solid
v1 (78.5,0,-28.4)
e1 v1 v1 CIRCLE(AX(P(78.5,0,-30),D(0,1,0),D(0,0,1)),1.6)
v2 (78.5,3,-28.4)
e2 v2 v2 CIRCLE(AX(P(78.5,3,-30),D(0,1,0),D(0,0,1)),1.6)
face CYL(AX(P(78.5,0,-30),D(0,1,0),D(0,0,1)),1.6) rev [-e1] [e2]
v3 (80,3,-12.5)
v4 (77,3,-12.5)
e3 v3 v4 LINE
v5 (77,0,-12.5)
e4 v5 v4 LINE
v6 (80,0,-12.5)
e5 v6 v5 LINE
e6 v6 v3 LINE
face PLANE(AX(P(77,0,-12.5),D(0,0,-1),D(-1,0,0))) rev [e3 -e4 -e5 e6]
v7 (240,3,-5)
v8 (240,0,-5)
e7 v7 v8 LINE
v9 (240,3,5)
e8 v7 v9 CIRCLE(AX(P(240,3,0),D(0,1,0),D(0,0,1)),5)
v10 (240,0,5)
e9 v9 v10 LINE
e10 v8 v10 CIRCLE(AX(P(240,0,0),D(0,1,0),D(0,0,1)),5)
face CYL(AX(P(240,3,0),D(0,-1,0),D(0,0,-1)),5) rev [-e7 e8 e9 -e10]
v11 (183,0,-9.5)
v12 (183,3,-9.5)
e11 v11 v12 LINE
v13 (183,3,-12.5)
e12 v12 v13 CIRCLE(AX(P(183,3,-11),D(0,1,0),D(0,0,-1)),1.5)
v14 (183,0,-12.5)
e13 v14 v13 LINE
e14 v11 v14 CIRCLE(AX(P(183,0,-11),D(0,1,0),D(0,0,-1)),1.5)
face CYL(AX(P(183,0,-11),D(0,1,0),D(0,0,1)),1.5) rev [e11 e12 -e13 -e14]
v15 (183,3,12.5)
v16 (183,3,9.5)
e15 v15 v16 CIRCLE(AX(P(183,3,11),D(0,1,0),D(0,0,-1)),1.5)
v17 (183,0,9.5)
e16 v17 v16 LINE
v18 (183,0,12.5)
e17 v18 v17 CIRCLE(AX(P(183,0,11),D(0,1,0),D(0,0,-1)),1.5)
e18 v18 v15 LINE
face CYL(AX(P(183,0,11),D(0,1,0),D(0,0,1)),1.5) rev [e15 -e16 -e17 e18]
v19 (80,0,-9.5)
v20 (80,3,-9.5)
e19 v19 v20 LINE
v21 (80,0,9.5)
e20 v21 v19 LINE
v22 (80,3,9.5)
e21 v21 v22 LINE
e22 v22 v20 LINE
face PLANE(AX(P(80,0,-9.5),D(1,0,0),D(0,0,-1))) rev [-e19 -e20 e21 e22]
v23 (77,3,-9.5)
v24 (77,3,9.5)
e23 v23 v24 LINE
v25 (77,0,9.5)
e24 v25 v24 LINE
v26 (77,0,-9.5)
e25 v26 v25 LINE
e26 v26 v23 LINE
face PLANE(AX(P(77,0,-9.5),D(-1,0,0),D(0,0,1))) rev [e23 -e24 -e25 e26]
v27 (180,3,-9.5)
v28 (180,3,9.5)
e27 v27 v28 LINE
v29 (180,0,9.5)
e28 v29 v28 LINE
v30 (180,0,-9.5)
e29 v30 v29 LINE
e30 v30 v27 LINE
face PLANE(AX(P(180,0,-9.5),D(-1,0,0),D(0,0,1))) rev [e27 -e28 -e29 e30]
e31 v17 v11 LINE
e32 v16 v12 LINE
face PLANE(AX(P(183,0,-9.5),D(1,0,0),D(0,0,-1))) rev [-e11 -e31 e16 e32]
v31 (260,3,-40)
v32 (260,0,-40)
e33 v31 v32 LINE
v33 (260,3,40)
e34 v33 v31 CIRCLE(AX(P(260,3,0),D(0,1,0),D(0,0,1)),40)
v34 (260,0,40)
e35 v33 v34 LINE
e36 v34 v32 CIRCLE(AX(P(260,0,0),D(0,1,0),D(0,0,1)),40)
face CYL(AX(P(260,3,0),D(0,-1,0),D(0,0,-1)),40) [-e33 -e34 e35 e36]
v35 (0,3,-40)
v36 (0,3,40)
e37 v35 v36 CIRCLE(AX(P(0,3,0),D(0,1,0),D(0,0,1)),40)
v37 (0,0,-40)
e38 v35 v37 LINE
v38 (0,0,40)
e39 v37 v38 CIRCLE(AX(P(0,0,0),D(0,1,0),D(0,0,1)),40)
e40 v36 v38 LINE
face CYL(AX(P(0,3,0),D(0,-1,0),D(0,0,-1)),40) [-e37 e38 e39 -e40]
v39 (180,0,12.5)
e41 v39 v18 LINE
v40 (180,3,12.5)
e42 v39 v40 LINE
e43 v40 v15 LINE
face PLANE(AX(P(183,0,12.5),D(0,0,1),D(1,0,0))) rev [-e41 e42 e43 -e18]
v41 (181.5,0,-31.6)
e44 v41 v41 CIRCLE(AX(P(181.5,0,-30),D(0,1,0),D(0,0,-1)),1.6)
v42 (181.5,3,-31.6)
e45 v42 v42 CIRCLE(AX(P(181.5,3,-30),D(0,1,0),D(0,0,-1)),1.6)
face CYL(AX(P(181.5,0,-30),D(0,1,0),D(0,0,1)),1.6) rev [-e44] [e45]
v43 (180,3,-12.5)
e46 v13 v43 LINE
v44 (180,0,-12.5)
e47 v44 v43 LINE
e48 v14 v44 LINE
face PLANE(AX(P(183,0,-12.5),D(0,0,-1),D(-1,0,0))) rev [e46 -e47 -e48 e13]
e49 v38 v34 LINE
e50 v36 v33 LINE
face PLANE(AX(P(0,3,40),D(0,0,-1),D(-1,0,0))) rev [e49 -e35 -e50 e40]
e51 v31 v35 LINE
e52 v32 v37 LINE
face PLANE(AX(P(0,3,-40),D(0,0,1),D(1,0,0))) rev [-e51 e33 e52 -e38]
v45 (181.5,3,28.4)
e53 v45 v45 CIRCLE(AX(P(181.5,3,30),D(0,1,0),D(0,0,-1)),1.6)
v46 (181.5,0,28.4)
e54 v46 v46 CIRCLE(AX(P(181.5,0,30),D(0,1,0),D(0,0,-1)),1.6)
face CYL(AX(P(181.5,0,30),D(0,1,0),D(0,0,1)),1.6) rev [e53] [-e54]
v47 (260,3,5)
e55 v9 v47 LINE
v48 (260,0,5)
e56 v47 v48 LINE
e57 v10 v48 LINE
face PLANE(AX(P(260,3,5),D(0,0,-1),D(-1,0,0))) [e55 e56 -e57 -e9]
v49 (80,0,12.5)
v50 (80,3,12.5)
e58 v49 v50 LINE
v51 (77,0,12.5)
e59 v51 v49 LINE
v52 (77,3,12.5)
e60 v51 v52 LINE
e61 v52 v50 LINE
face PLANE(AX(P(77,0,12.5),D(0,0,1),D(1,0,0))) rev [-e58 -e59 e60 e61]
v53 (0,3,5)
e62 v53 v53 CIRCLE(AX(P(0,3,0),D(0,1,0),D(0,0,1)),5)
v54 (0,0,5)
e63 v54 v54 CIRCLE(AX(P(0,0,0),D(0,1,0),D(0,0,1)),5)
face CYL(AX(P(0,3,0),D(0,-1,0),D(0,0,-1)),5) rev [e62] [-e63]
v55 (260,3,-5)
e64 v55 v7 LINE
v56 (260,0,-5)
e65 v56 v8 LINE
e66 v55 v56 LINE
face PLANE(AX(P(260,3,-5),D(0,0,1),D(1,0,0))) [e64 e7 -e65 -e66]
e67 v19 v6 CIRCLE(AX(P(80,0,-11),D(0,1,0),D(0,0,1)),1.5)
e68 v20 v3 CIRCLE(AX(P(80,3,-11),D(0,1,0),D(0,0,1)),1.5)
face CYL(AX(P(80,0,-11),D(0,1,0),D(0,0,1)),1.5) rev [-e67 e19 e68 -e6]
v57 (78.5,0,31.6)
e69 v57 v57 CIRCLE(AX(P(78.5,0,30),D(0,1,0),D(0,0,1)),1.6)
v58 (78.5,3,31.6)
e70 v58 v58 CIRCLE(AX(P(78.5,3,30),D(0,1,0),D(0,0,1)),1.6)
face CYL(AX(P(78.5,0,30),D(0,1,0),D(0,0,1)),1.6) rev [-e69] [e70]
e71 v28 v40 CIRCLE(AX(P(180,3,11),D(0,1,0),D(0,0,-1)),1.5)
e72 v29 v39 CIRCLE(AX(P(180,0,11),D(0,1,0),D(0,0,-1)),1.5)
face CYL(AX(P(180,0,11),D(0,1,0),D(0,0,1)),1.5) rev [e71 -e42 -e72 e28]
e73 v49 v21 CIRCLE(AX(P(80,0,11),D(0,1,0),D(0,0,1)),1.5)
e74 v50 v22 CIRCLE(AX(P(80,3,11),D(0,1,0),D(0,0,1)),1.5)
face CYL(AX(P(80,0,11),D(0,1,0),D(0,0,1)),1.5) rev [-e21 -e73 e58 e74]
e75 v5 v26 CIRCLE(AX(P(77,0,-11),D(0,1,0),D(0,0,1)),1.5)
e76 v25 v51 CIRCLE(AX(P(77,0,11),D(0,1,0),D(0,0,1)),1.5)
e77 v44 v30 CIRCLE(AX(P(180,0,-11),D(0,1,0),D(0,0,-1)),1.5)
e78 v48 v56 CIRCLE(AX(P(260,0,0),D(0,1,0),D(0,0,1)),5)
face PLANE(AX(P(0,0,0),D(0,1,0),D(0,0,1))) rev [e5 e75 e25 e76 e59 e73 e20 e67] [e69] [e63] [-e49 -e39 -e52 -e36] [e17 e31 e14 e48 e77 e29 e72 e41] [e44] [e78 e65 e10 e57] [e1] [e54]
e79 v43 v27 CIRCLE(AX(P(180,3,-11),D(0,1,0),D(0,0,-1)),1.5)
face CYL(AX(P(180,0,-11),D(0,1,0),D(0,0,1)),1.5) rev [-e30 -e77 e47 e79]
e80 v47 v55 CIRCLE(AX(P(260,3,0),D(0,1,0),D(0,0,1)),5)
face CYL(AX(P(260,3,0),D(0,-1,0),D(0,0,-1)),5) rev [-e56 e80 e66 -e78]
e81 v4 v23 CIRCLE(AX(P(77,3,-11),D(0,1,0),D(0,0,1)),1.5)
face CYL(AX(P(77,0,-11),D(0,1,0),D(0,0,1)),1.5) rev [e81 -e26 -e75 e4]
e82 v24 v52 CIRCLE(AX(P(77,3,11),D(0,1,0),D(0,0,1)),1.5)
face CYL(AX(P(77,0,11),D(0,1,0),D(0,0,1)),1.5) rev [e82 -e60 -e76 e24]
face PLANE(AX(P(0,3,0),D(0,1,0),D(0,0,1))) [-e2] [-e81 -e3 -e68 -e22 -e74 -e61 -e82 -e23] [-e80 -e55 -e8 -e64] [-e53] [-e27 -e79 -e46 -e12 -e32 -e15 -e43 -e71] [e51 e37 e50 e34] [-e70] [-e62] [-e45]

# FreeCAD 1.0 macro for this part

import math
import FreeCAD as App
import Part
import Sketcher

V = App.Vector

doc = App.newDocument("Part")
body = doc.addObject("PartDesign::Body", "Body")

# Sketch on XZ plane
sketch1 = body.newObject("Sketcher::SketchObject", "Sketch")
sketch1.AttachmentSupport = (doc.getObject("XZ_Plane"), [""])
sketch1.MapMode = "FlatFace"
sketch1.addGeometry([
    Part.LineSegment(V(260, -40, 0), V(0, -40, 0)),  # 0
    Part.ArcOfCircle(Part.Circle(V(0, 0, 0), V(0, 0, 1), 40), math.radians(90), math.radians(270)),  # 1
    Part.LineSegment(V(0, 40, 0), V(260, 40, 0)),  # 2
    Part.ArcOfCircle(Part.Circle(V(260, 0, 0), V(0, 0, 1), 40), math.radians(-90), math.radians(90)),  # 3
    Part.LineSegment(V(260, 5, 0), V(240, 5, 0)),  # 4
    Part.ArcOfCircle(Part.Circle(V(240, 0, 0), V(0, 0, 1), 5), math.radians(90), math.radians(270)),  # 5
    Part.LineSegment(V(240, -5, 0), V(260, -5, 0)),  # 6
    Part.ArcOfCircle(Part.Circle(V(260, 0, 0), V(0, 0, 1), 5), math.radians(-90), math.radians(90)),  # 7
    Part.Circle(V(0, 0, 0), V(0, 0, 1), 5),  # 8
], False)
sketch1.addConstraint([
    Sketcher.Constraint("Tangent", 0, 2, 1, 2),
    Sketcher.Constraint("Tangent", 1, 1, 2, 1),
    Sketcher.Constraint("Tangent", 2, 2, 3, 2),
    Sketcher.Constraint("Tangent", 3, 1, 0, 1),
    Sketcher.Constraint("Tangent", 4, 2, 5, 1),
    Sketcher.Constraint("Tangent", 5, 2, 6, 1),
    Sketcher.Constraint("Tangent", 6, 2, 7, 1),
    Sketcher.Constraint("Tangent", 7, 2, 4, 1),
    Sketcher.Constraint("Horizontal", 0),
    Sketcher.Constraint("Horizontal", 2),
    Sketcher.Constraint("Horizontal", 4),
    Sketcher.Constraint("Horizontal", 6),
    Sketcher.Constraint("Coincident", 1, 3, -1, 1),
    Sketcher.Constraint("Coincident", 8, 3, -1, 1),
    Sketcher.Constraint("Coincident", 7, 3, 3, 3),
    Sketcher.Constraint("Equal", 7, 8),
    Sketcher.Constraint("Diameter", 8, 10.0),
    Sketcher.Constraint("Radius", 1, 40.0),
    Sketcher.Constraint("DistanceX", 0, 2, 0, 1, 260.0),
    Sketcher.Constraint("DistanceX", 4, 2, 4, 1, 20.0),
])
pad1 = body.newObject("PartDesign::Pad", "Pad")
pad1.Profile = sketch1
pad1.Length = 3
pad1.Reversed = True

# Sketch on XZ plane
sketch2 = body.newObject("Sketcher::SketchObject", "Sketch001")
sketch2.AttachmentSupport = (doc.getObject("XZ_Plane"), [""])
sketch2.MapMode = "FlatFace"
sketch2.AttachmentOffset = App.Placement(V(0, 0, -3), App.Rotation())
sketch2.addGeometry([
    Part.Circle(V(78.5, -30, 0), V(0, 0, 1), 1.6),  # 0
    Part.Circle(V(78.5, 30, 0), V(0, 0, 1), 1.6),  # 1
    Part.Circle(V(181.5, 30, 0), V(0, 0, 1), 1.6),  # 2
    Part.Circle(V(181.5, -30, 0), V(0, 0, 1), 1.6),  # 3
    Part.LineSegment(V(80, 9.5, 0), V(80, -9.5, 0)),  # 4
    Part.ArcOfCircle(Part.Circle(V(80, -11, 0), V(0, 0, 1), 1.5), math.radians(-90), math.radians(90)),  # 5
    Part.LineSegment(V(80, -12.5, 0), V(77, -12.5, 0)),  # 6
    Part.ArcOfCircle(Part.Circle(V(77, -11, 0), V(0, 0, 1), 1.5), math.radians(90), math.radians(270)),  # 7
    Part.LineSegment(V(77, -9.5, 0), V(77, 9.5, 0)),  # 8
    Part.ArcOfCircle(Part.Circle(V(77, 11, 0), V(0, 0, 1), 1.5), math.radians(90), math.radians(270)),  # 9
    Part.LineSegment(V(77, 12.5, 0), V(80, 12.5, 0)),  # 10
    Part.ArcOfCircle(Part.Circle(V(80, 11, 0), V(0, 0, 1), 1.5), math.radians(-90), math.radians(90)),  # 11
    Part.LineSegment(V(183, -12.5, 0), V(180, -12.5, 0)),  # 12
    Part.ArcOfCircle(Part.Circle(V(180, -11, 0), V(0, 0, 1), 1.5), math.radians(90), math.radians(270)),  # 13
    Part.LineSegment(V(180, -9.5, 0), V(180, 9.5, 0)),  # 14
    Part.ArcOfCircle(Part.Circle(V(180, 11, 0), V(0, 0, 1), 1.5), math.radians(90), math.radians(270)),  # 15
    Part.LineSegment(V(180, 12.5, 0), V(183, 12.5, 0)),  # 16
    Part.ArcOfCircle(Part.Circle(V(183, 11, 0), V(0, 0, 1), 1.5), math.radians(-90), math.radians(90)),  # 17
    Part.LineSegment(V(183, 9.5, 0), V(183, -9.5, 0)),  # 18
    Part.ArcOfCircle(Part.Circle(V(183, -11, 0), V(0, 0, 1), 1.5), math.radians(-90), math.radians(90)),  # 19
], False)
sketch2.addConstraint([
    Sketcher.Constraint("Coincident", 4, 2, 5, 2),
    Sketcher.Constraint("Tangent", 5, 1, 6, 1),
    Sketcher.Constraint("Tangent", 6, 2, 7, 2),
    Sketcher.Constraint("Coincident", 7, 1, 8, 1),
    Sketcher.Constraint("Coincident", 8, 2, 9, 2),
    Sketcher.Constraint("Tangent", 9, 1, 10, 1),
    Sketcher.Constraint("Tangent", 10, 2, 11, 2),
    Sketcher.Constraint("Coincident", 11, 1, 4, 1),
    Sketcher.Constraint("Tangent", 12, 2, 13, 2),
    Sketcher.Constraint("Coincident", 13, 1, 14, 1),
    Sketcher.Constraint("Coincident", 14, 2, 15, 2),
    Sketcher.Constraint("Tangent", 15, 1, 16, 1),
    Sketcher.Constraint("Tangent", 16, 2, 17, 2),
    Sketcher.Constraint("Coincident", 17, 1, 18, 1),
    Sketcher.Constraint("Coincident", 18, 2, 19, 2),
    Sketcher.Constraint("Tangent", 19, 1, 12, 1),
    Sketcher.Constraint("Vertical", 4),
    Sketcher.Constraint("Horizontal", 6),
    Sketcher.Constraint("Vertical", 8),
    Sketcher.Constraint("Horizontal", 10),
    Sketcher.Constraint("Horizontal", 12),
    Sketcher.Constraint("Vertical", 14),
    Sketcher.Constraint("Horizontal", 16),
    Sketcher.Constraint("Vertical", 18),
    Sketcher.Constraint("Equal", 0, 1),
    Sketcher.Constraint("Equal", 1, 2),
    Sketcher.Constraint("Equal", 2, 3),
    Sketcher.Constraint("Equal", 5, 7),
    Sketcher.Constraint("Equal", 7, 9),
    Sketcher.Constraint("Equal", 9, 11),
    Sketcher.Constraint("Equal", 11, 13),
    Sketcher.Constraint("Equal", 13, 15),
    Sketcher.Constraint("Equal", 15, 17),
    Sketcher.Constraint("Equal", 17, 19),
    Sketcher.Constraint("Symmetric", 0, 3, 1, 3, -1),
    Sketcher.Constraint("Symmetric", 2, 3, 3, 3, -1),
    Sketcher.Constraint("Symmetric", 7, 3, 9, 3, -1),
    Sketcher.Constraint("Symmetric", 13, 3, 15, 3, -1),
    Sketcher.Constraint("Horizontal", 1, 3, 2, 3),
    Sketcher.Constraint("Horizontal", 7, 3, 13, 3),
    Sketcher.Constraint("Vertical", 5, 3, 11, 3),
    Sketcher.Constraint("Vertical", 17, 3, 19, 3),
    Sketcher.Constraint("Vertical", 11, 3, 4, 2),
    Sketcher.Constraint("Vertical", 6, 2, 7, 1),
    Sketcher.Constraint("Vertical", 12, 2, 13, 1),
    Sketcher.Constraint("Vertical", 16, 2, 17, 1),
    Sketcher.Constraint("Equal", 10, 12),
    Sketcher.Constraint("Diameter", 0, 3.2),
    Sketcher.Constraint("Radius", 5, 1.5),
    Sketcher.Constraint("DistanceX", 6, 2, 6, 1, 3.0),
    Sketcher.Constraint("DistanceY", 4, 2, 4, 1, 19.0),
    Sketcher.Constraint("DistanceY", 0, 3, -1, 1, 30.0),
    Sketcher.Constraint("DistanceX", -1, 1, 5, 3, 80.0),
    Sketcher.Constraint("DistanceX", -1, 1, 13, 3, 180.0),
    Sketcher.Constraint("DistanceX", 1, 3, 2, 3, 103.0),
    Sketcher.Constraint("DistanceX", -1, 1, 0, 3, 78.5),
])
pocket1 = body.newObject("PartDesign::Pocket", "Pocket")
pocket1.Profile = sketch2
pocket1.Type = "ThroughAll"
pocket1.Reversed = True

doc.recompute()
